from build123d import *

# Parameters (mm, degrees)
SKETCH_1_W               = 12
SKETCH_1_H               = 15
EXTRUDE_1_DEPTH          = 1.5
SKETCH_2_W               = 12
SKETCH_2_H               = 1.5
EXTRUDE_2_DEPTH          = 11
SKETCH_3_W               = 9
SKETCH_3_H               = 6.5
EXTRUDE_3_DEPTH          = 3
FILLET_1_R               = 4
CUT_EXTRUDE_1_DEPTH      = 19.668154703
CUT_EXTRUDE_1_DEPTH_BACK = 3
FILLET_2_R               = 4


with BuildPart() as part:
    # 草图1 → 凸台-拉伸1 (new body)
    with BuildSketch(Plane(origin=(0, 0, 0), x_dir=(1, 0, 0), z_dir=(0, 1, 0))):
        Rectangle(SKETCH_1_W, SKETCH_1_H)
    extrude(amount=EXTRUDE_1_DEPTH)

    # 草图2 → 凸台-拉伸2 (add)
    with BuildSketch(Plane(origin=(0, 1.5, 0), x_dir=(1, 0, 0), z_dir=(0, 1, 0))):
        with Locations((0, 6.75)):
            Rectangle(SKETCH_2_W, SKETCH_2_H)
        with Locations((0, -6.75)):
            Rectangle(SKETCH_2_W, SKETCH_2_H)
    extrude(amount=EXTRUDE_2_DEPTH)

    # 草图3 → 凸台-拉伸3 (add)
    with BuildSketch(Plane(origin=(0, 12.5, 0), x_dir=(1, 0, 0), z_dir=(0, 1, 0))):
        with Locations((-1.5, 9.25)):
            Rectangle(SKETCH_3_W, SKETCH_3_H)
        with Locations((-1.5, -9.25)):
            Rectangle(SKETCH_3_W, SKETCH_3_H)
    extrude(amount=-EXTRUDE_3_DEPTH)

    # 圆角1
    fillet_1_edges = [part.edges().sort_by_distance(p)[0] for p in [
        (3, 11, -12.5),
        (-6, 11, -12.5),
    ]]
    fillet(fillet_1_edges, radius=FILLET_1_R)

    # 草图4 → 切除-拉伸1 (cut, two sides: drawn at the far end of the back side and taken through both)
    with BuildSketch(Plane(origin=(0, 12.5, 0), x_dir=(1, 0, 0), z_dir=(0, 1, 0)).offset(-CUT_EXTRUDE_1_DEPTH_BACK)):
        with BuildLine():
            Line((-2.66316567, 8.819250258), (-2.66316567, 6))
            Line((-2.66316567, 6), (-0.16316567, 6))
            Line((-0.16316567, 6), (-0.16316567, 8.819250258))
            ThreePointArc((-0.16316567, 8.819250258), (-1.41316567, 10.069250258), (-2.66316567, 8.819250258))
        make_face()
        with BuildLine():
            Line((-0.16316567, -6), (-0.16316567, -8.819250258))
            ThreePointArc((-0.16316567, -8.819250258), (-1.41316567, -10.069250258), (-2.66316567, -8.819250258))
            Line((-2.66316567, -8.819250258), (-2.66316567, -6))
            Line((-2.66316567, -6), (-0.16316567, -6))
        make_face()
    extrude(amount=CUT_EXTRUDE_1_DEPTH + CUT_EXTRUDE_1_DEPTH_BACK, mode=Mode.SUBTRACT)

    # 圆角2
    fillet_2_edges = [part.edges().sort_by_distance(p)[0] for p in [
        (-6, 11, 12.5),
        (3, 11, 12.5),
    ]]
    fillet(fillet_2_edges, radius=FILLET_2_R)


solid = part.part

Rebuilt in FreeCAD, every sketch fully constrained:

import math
import FreeCAD as App
import Part
import Sketcher
from FreeCAD import Vector
Q = App.Units.Quantity


def edges_at(feature, points):
    """Names of the edges that pass closest to the given points."""
    edges = feature.Shape.Edges
    near = lambda p: min(range(len(edges)), key=lambda i: edges[i].distToShape(Part.Vertex(*p))[0])
    return sorted({f"Edge{near(p) + 1}" for p in points})


def add_polygon(sketch, points):
    """Adds a closed chain of lines whose ends are joined by coincident constraints."""
    first, n = sketch.GeometryCount, len(points)
    for a, b in zip(points, points[1:] + points[:1]):
        sketch.addGeometry(Part.LineSegment(App.Vector(*a, 0), App.Vector(*b, 0)), False)
    for i in range(n):
        sketch.addConstraint(Sketcher.Constraint("Coincident", first + i, 2, first + (i + 1) % n, 1))

doc = App.newDocument("Part")
body = doc.addObject("PartDesign::Body", "Body")

sketch1 = body.newObject("Sketcher::SketchObject", "Sketch")
sketch1.AttachmentSupport = (doc.getObject("XZ_Plane"), [""])
sketch1.MapMode = "FlatFace"
add_polygon(sketch1, [(-6, -7.5), (-6, 7.5), (6, 7.5), (6, -7.5)])
sketch1.addConstraint(Sketcher.Constraint("Vertical", 0))
sketch1.addConstraint(Sketcher.Constraint("Horizontal", 1))
sketch1.addConstraint(Sketcher.Constraint("Vertical", 2))
sketch1.addConstraint(Sketcher.Constraint("Horizontal", 3))
sketch1.addConstraint(Sketcher.Constraint("Symmetric", 0, 2, 2, 2, -1, 1))
sketch1.addConstraint(Sketcher.Constraint("DistanceX", 1, 1, 1, 2, Q("12 mm")))
sketch1.addConstraint(Sketcher.Constraint("DistanceY", 0, 1, 0, 2, Q("15 mm")))
pad1 = body.newObject("PartDesign::Pad", "Pad")
pad1.Profile = sketch1
pad1.Length = 1.5
pad1.Reversed = True

sketch2 = body.newObject("Sketcher::SketchObject", "Sketch001")
sketch2.AttachmentSupport = (doc.getObject("XZ_Plane"), [""])
sketch2.MapMode = "FlatFace"
sketch2.AttachmentOffset = App.Placement(Vector(0, 0, -1.5), App.Rotation())
add_polygon(sketch2, [(-6, -7.5), (-6, -6), (6, -6), (6, -7.5)])
add_polygon(sketch2, [(-6, 6), (-6, 7.5), (6, 7.5), (6, 6)])
sketch2.addConstraint(Sketcher.Constraint("Vertical", 0))
sketch2.addConstraint(Sketcher.Constraint("Horizontal", 1))
sketch2.addConstraint(Sketcher.Constraint("Vertical", 2))
sketch2.addConstraint(Sketcher.Constraint("Horizontal", 3))
sketch2.addConstraint(Sketcher.Constraint("Vertical", 4))
sketch2.addConstraint(Sketcher.Constraint("Horizontal", 5))
sketch2.addConstraint(Sketcher.Constraint("Vertical", 6))
sketch2.addConstraint(Sketcher.Constraint("Horizontal", 7))
sketch2.addConstraint(Sketcher.Constraint("Symmetric", 2, 2, 4, 2, -1, 1))
sketch2.addConstraint(Sketcher.Constraint("Symmetric", 0, 2, 6, 2, -1, 1))
sketch2.addConstraint(Sketcher.Constraint("Vertical", 3, 2, 4, 2))
sketch2.addConstraint(Sketcher.Constraint("DistanceX", 1, 1, 1, 2, Q("12 mm")))
sketch2.addConstraint(Sketcher.Constraint("DistanceY", 0, 1, 0, 2, Q("1.5 mm")))
sketch2.addConstraint(Sketcher.Constraint("DistanceY", 0, 2, -1, 1, Q("6 mm")))
pad2 = body.newObject("PartDesign::Pad", "Pad001")
pad2.Profile = sketch2
pad2.Length = 11
pad2.Reversed = True

sketch3 = body.newObject("Sketcher::SketchObject", "Sketch002")
sketch3.AttachmentSupport = (doc.getObject("XZ_Plane"), [""])
sketch3.MapMode = "FlatFace"
sketch3.AttachmentOffset = App.Placement(Vector(0, 0, -12.5), App.Rotation())
add_polygon(sketch3, [(-6, -12.5), (-6, -6), (3, -6), (3, -12.5)])
add_polygon(sketch3, [(-6, 6), (-6, 12.5), (3, 12.5), (3, 6)])
sketch3.addConstraint(Sketcher.Constraint("Vertical", 0))
sketch3.addConstraint(Sketcher.Constraint("Horizontal", 1))
sketch3.addConstraint(Sketcher.Constraint("Vertical", 2))
sketch3.addConstraint(Sketcher.Constraint("Horizontal", 3))
sketch3.addConstraint(Sketcher.Constraint("Vertical", 4))
sketch3.addConstraint(Sketcher.Constraint("Horizontal", 5))
sketch3.addConstraint(Sketcher.Constraint("Vertical", 6))
sketch3.addConstraint(Sketcher.Constraint("Horizontal", 7))
sketch3.addConstraint(Sketcher.Constraint("Symmetric", 3, 2, 4, 2, -1))
sketch3.addConstraint(Sketcher.Constraint("Symmetric", 1, 2, 6, 2, -1))
sketch3.addConstraint(Sketcher.Constraint("DistanceX", 1, 1, 1, 2, Q("9 mm")))
sketch3.addConstraint(Sketcher.Constraint("DistanceY", 0, 1, 0, 2, Q("6.5 mm")))
sketch3.addConstraint(Sketcher.Constraint("DistanceX", 0, 2, -1, 1, Q("6 mm")))
sketch3.addConstraint(Sketcher.Constraint("DistanceY", 0, 2, -1, 1, Q("6 mm")))
pad3 = body.newObject("PartDesign::Pad", "Pad002")
pad3.Profile = sketch3
pad3.Length = 3
doc.recompute()

fillet = body.newObject("PartDesign::Fillet", "Fillet")
fillet.Base = (pad3, edges_at(pad3, [(3, 11, -12.5), (-6, 11, -12.5)]))
fillet.Radius = 4

sketch4 = body.newObject("Sketcher::SketchObject", "Sketch003")
sketch4.AttachmentSupport = (doc.getObject("XZ_Plane"), [""])
sketch4.MapMode = "FlatFace"
sketch4.AttachmentOffset = App.Placement(Vector(0, 0, -12.5), App.Rotation())
sketch4.addGeometry(Part.LineSegment(Vector(-2.663166, -8.81925, 0), Vector(-2.663166, -6, 0)), False)
sketch4.addGeometry(Part.LineSegment(Vector(-2.663166, -6, 0), Vector(-0.163166, -6, 0)), False)
sketch4.addGeometry(Part.LineSegment(Vector(-0.163166, -6, 0), Vector(-0.163166, -8.81925, 0)), False)
sketch4.addGeometry(Part.ArcOfCircle(Part.Circle(Vector(-1.413166, -8.81925, 0), Vector(0, 0, 1), 1.25), math.radians(180), math.radians(360)), False)
sketch4.addGeometry(Part.LineSegment(Vector(-0.163166, 8.81925, 0), Vector(-0.163166, 6, 0)), False)
sketch4.addGeometry(Part.LineSegment(Vector(-0.163166, 6, 0), Vector(-2.663166, 6, 0)), False)
sketch4.addGeometry(Part.LineSegment(Vector(-2.663166, 6, 0), Vector(-2.663166, 8.81925, 0)), False)
sketch4.addGeometry(Part.ArcOfCircle(Part.Circle(Vector(-1.413166, 8.81925, 0), Vector(0, 0, 1), 1.25), math.radians(0), math.radians(180)), False)
sketch4.addConstraint(Sketcher.Constraint("Coincident", 0, 2, 1, 1))
sketch4.addConstraint(Sketcher.Constraint("Coincident", 1, 2, 2, 1))
sketch4.addConstraint(Sketcher.Constraint("Tangent", 2, 2, 3, 2))
sketch4.addConstraint(Sketcher.Constraint("Tangent", 3, 1, 0, 1))
sketch4.addConstraint(Sketcher.Constraint("Coincident", 4, 2, 5, 1))
sketch4.addConstraint(Sketcher.Constraint("Coincident", 5, 2, 6, 1))
sketch4.addConstraint(Sketcher.Constraint("Tangent", 6, 2, 7, 2))
sketch4.addConstraint(Sketcher.Constraint("Tangent", 7, 1, 4, 1))
sketch4.addConstraint(Sketcher.Constraint("Vertical", 0))
sketch4.addConstraint(Sketcher.Constraint("Horizontal", 1))
sketch4.addConstraint(Sketcher.Constraint("Vertical", 2))
sketch4.addConstraint(Sketcher.Constraint("Vertical", 4))
sketch4.addConstraint(Sketcher.Constraint("Horizontal", 5))
sketch4.addConstraint(Sketcher.Constraint("Vertical", 6))
sketch4.addConstraint(Sketcher.Constraint("Equal", 3, 7))
sketch4.addConstraint(Sketcher.Constraint("Symmetric", 3, 3, 7, 3, -1))
sketch4.addConstraint(Sketcher.Constraint("Equal", 2, 4))
sketch4.addConstraint(Sketcher.Constraint("Radius", 3, Q("1.25 mm")))
sketch4.addConstraint(Sketcher.Constraint("DistanceY", 0, 2, -1, 1, Q("6 mm")))
sketch4.addConstraint(Sketcher.Constraint("DistanceY", 0, 1, 0, 2, Q("2.81925 mm")))
sketch4.addConstraint(Sketcher.Constraint("DistanceX", 3, 3, -1, 1, Q("1.413166 mm")))
pocket1 = body.newObject("PartDesign::Pocket", "Pocket")
pocket1.Profile = sketch4
pocket1.Type = "TwoLengths"
pocket1.Length = 19.668155
pocket1.Length2 = 3
doc.recompute()

fillet2 = body.newObject("PartDesign::Fillet", "Fillet001")
fillet2.Base = (pocket1, edges_at(pocket1, [(-6, 11, 12.5), (3, 11, 12.5)]))
fillet2.Radius = 4

doc.recompute()
